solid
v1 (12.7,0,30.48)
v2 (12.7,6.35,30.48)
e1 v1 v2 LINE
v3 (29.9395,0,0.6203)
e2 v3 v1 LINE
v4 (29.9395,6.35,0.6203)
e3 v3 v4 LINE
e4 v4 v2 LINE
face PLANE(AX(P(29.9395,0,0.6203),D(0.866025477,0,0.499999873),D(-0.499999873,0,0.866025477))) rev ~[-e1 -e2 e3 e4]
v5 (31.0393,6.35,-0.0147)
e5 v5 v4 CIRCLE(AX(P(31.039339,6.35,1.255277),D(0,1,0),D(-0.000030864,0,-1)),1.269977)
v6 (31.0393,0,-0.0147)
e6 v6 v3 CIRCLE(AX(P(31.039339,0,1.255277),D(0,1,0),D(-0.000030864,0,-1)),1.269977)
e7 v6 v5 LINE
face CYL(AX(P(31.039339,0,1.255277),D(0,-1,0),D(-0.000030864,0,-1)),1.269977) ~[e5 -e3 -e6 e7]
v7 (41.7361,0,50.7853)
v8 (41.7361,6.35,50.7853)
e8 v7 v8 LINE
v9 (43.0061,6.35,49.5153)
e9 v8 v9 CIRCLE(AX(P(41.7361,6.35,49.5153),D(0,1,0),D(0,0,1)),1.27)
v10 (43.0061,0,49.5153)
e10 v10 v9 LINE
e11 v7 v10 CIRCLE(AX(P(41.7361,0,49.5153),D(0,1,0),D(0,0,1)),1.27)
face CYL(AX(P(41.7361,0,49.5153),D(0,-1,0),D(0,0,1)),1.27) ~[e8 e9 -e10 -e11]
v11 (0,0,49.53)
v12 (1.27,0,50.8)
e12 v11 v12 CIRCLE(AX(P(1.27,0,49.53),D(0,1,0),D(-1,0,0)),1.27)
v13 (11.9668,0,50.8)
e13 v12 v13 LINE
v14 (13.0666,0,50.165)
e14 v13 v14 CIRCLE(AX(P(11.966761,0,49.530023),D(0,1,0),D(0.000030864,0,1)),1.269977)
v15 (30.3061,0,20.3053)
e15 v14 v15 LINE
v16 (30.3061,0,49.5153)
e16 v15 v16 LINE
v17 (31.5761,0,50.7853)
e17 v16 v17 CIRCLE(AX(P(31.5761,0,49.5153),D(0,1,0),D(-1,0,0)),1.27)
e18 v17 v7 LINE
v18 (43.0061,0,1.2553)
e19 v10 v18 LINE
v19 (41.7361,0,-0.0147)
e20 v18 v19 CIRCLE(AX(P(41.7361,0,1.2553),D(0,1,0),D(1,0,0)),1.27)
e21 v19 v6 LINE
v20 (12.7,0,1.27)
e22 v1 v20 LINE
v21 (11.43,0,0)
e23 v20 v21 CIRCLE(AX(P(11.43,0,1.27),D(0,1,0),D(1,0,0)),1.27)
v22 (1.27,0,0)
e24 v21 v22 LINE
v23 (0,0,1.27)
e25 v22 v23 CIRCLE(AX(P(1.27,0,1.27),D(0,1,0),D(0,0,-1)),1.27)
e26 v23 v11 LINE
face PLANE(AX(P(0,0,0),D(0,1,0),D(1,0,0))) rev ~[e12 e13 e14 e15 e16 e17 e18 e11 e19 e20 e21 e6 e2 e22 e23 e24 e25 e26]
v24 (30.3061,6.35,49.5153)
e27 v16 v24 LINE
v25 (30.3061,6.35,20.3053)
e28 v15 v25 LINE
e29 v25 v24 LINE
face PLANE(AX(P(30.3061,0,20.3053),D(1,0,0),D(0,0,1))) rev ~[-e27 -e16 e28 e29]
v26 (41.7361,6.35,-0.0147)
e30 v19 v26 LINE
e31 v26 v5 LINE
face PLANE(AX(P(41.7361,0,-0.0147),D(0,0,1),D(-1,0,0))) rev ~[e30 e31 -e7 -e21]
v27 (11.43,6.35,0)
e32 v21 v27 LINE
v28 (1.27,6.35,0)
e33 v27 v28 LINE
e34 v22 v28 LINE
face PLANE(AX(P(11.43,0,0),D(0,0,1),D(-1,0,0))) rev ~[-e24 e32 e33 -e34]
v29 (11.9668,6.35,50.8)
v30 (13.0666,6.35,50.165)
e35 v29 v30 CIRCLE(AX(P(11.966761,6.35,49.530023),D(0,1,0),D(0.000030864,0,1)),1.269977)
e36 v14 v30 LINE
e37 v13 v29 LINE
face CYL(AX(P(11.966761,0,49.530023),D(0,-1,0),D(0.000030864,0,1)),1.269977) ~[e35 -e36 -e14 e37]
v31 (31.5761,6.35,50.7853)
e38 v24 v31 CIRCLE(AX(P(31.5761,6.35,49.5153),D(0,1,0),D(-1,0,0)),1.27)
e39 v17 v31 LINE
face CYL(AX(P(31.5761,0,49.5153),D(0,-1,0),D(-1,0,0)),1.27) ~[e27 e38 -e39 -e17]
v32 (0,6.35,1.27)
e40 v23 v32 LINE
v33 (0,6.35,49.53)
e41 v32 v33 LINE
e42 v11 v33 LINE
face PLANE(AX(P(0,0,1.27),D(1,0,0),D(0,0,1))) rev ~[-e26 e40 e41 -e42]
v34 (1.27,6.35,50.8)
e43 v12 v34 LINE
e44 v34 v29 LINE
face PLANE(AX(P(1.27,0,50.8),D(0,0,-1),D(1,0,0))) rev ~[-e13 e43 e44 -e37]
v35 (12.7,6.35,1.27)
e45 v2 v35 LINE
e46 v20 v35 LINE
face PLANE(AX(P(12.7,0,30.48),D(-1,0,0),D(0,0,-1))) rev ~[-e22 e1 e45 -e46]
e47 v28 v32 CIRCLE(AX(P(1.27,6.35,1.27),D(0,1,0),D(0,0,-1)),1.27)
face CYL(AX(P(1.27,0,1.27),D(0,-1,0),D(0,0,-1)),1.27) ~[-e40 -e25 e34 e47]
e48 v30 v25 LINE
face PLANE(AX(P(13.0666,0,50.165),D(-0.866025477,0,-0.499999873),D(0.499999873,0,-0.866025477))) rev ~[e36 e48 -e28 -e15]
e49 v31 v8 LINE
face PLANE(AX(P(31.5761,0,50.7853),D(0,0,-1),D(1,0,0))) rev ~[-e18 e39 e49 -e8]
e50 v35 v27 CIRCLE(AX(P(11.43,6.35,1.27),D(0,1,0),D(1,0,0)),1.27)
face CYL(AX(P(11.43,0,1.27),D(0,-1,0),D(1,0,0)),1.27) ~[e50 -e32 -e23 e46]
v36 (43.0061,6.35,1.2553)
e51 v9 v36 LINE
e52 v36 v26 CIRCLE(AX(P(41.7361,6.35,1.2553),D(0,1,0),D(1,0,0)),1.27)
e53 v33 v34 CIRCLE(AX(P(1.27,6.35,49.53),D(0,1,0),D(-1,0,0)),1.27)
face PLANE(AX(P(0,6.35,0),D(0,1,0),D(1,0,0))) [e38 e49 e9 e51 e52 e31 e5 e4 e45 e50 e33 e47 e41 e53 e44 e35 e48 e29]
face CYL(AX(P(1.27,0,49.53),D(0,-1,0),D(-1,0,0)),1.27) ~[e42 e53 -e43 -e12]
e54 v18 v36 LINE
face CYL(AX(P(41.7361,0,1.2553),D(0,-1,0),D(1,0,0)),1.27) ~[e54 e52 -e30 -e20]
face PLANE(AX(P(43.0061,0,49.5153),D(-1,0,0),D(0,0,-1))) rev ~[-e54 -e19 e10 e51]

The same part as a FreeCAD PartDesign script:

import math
import FreeCAD as App
import Part
import Sketcher
Q = App.Units.Quantity

doc = App.newDocument("Part")
body = doc.addObject("PartDesign::Body", "Body")

# Sketch on XZ plane
sketch1 = body.newObject("Sketcher::SketchObject", "Sketch")
sketch1.AttachmentSupport = (doc.getObject("XZ_Plane"), [""])
sketch1.MapMode = "FlatFace"
sketch1.addGeometry([
    Part.ArcOfCircle(Part.Circle(App.Vector(1.3, 1.3, 0), App.Vector(0, 0, 1), 1.3), math.radians(180), math.radians(270)),  # 0
    Part.LineSegment(App.Vector(0, 1.3, 0), App.Vector(0, 49.5, 0)),  # 1
    Part.ArcOfCircle(Part.Circle(App.Vector(1.3, 49.5, 0), App.Vector(0, 0, 1), 1.3), math.radians(90), math.radians(180)),  # 2
    Part.LineSegment(App.Vector(1.3, 50.8, 0), App.Vector(12, 50.8, 0)),  # 3
    Part.ArcOfCircle(Part.Circle(App.Vector(12, 49.5, 0), App.Vector(0, 0, 1), 1.3), math.radians(30), math.radians(90)),  # 4
    Part.LineSegment(App.Vector(13.1, 50.2, 0), App.Vector(30.3, 20.3, 0)),  # 5
    Part.LineSegment(App.Vector(30.3, 20.3, 0), App.Vector(30.3, 49.5, 0)),  # 6
    Part.ArcOfCircle(Part.Circle(App.Vector(31.6, 49.5, 0), App.Vector(0, 0, 1), 1.3), math.radians(90), math.radians(180)),  # 7
    Part.LineSegment(App.Vector(31.6, 50.8, 0), App.Vector(41.7, 50.8, 0)),  # 8
    Part.ArcOfCircle(Part.Circle(App.Vector(41.7, 49.5, 0), App.Vector(0, 0, 1), 1.3), math.radians(0), math.radians(90)),  # 9
    Part.LineSegment(App.Vector(43, 49.5, 0), App.Vector(43, 1.3, 0)),  # 10
    Part.ArcOfCircle(Part.Circle(App.Vector(41.7, 1.3, 0), App.Vector(0, 0, 1), 1.3), math.radians(-90), math.radians(0)),  # 11
    Part.LineSegment(App.Vector(41.7, 0, 0), App.Vector(31, 0, 0)),  # 12
    Part.ArcOfCircle(Part.Circle(App.Vector(31, 1.3, 0), App.Vector(0, 0, 1), 1.3), math.radians(-150), math.radians(-90)),  # 13
    Part.LineSegment(App.Vector(29.9, 0.6, 0), App.Vector(12.7, 30.5, 0)),  # 14
    Part.LineSegment(App.Vector(12.7, 30.5, 0), App.Vector(12.7, 1.3, 0)),  # 15
    Part.ArcOfCircle(Part.Circle(App.Vector(11.4, 1.3, 0), App.Vector(0, 0, 1), 1.3), math.radians(-90), math.radians(0)),  # 16
    Part.LineSegment(App.Vector(11.4, 0, 0), App.Vector(1.3, 0, 0)),  # 17
], False)
sketch1.addConstraint([
    Sketcher.Constraint("Tangent", 0, 1, 1, 1),
    Sketcher.Constraint("Tangent", 1, 2, 2, 2),
    Sketcher.Constraint("Tangent", 2, 1, 3, 1),
    Sketcher.Constraint("Tangent", 3, 2, 4, 2),
    Sketcher.Constraint("Tangent", 4, 1, 5, 1),
    Sketcher.Constraint("Coincident", 5, 2, 6, 1),
    Sketcher.Constraint("Tangent", 6, 2, 7, 2),
    Sketcher.Constraint("Tangent", 7, 1, 8, 1),
    Sketcher.Constraint("Tangent", 8, 2, 9, 2),
    Sketcher.Constraint("Tangent", 9, 1, 10, 1),
    Sketcher.Constraint("Tangent", 10, 2, 11, 2),
    Sketcher.Constraint("Tangent", 11, 1, 12, 1),
    Sketcher.Constraint("Tangent", 12, 2, 13, 2),
    Sketcher.Constraint("Tangent", 13, 1, 14, 1),
    Sketcher.Constraint("Coincident", 14, 2, 15, 1),
    Sketcher.Constraint("Tangent", 15, 2, 16, 2),
    Sketcher.Constraint("Tangent", 16, 1, 17, 1),
    Sketcher.Constraint("Tangent", 17, 2, 0, 2),
    Sketcher.Constraint("Vertical", 1),
    Sketcher.Constraint("Horizontal", 3),
    Sketcher.Constraint("Vertical", 6),
    Sketcher.Constraint("Horizontal", 8),
    Sketcher.Constraint("Vertical", 10),
    Sketcher.Constraint("Horizontal", 12),
    Sketcher.Constraint("Vertical", 15),
    Sketcher.Constraint("Horizontal", 17),
    Sketcher.Constraint("Equal", 0, 2),
    Sketcher.Constraint("Equal", 2, 4),
    Sketcher.Constraint("Equal", 4, 7),
    Sketcher.Constraint("Equal", 7, 9),
    Sketcher.Constraint("Equal", 9, 11),
    Sketcher.Constraint("Equal", 11, 13),
    Sketcher.Constraint("Equal", 13, 16),
    Sketcher.Constraint("PointOnObject", 0, 1, -2),
    Sketcher.Constraint("PointOnObject", 16, 1, -1),
    Sketcher.Constraint("Parallel", 5, 14),
    Sketcher.Constraint("Equal", 3, 12),
    Sketcher.Constraint("Equal", 8, 17),
    Sketcher.Constraint("Equal", 1, 10),
    Sketcher.Constraint("Radius", 0, Q("0.05 in")),
    Sketcher.Constraint("DistanceY", -1, 1, 2, 1, Q("2 in")),
    Sketcher.Constraint("DistanceX", -1, 1, 14, 2, Q("0.5 in")),
    Sketcher.Constraint("Angle", 5, Q("-60 deg")),
    Sketcher.Constraint("DistanceY", 6, 1, 6, 2, Q("1.15 in")),
    Sketcher.Constraint("DistanceX", -1, 1, 9, 1, 43.006),
    Sketcher.Constraint("DistanceX", 3, 1, 3, 2, 10.6968),
])
pad1 = body.newObject("PartDesign::Pad", "Pad")
pad1.Profile = sketch1
pad1.Length = Q("0.25 in")
pad1.Reversed = True

doc.recompute()
